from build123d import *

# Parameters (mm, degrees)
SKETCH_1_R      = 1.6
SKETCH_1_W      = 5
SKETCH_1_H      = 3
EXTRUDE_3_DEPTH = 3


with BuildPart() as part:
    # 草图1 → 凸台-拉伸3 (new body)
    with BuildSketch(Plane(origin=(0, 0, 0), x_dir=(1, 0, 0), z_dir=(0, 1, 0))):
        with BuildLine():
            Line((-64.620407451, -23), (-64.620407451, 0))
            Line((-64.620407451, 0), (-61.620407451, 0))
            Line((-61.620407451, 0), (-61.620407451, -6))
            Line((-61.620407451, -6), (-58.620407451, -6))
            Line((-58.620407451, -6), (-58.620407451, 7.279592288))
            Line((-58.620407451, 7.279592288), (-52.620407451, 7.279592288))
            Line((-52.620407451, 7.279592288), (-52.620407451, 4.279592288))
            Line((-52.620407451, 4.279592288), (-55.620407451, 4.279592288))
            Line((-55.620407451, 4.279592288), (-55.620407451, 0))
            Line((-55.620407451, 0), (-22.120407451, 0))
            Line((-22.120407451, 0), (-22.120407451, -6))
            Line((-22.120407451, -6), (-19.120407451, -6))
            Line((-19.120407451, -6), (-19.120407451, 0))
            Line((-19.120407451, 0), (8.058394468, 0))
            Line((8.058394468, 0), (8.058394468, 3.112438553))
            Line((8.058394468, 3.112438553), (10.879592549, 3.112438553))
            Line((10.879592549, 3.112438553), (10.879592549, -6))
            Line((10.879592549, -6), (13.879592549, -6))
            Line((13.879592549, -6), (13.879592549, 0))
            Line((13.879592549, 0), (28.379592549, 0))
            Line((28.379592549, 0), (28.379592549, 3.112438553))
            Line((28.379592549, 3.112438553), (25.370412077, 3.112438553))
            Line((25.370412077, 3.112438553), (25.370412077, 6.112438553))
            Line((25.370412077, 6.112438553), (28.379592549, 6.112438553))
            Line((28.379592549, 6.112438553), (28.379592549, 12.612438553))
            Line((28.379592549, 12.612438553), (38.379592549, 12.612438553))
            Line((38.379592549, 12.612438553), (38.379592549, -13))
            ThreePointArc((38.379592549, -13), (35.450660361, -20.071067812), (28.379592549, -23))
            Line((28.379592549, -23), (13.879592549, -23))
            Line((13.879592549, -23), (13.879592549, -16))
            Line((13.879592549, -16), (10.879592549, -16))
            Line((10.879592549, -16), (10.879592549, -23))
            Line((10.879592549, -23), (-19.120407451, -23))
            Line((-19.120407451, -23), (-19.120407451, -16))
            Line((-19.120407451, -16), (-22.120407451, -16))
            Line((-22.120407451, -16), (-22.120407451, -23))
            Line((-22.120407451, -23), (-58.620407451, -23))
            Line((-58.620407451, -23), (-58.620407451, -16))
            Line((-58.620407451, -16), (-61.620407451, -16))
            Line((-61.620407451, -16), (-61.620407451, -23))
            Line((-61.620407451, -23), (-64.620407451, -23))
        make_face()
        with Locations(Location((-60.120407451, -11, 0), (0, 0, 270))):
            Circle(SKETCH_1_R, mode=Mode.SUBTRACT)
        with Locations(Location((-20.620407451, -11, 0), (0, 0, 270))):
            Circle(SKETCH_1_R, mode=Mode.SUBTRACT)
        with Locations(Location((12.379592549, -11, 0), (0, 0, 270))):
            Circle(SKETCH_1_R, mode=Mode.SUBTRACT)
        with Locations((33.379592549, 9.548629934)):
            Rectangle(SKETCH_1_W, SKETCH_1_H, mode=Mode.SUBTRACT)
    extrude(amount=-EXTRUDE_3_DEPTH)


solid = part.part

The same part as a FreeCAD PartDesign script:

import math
import FreeCAD as App
import Part
import Sketcher
Q = App.Units.Quantity


def add_polygon(sketch, points):
    """Adds a closed chain of lines whose ends are joined by coincident constraints."""
    first, n = sketch.GeometryCount, len(points)
    for a, b in zip(points, points[1:] + points[:1]):
        sketch.addGeometry(Part.LineSegment(App.Vector(*a, 0), App.Vector(*b, 0)), False)
    for i in range(n):
        sketch.addConstraint(Sketcher.Constraint("Coincident", first + i, 2, first + (i + 1) % n, 1))

doc = App.newDocument("Part")
body = doc.addObject("PartDesign::Body", "Body")

# Sketch on XZ plane
sketch1 = doc.addObject("Sketcher::SketchObject", "Sketch")
body.addObject(sketch1)
sketch1.AttachmentSupport = (doc.XZ_Plane, [""])
sketch1.MapMode = "FlatFace"
sketch1.addGeometry(Part.LineSegment(App.Vector(-64.6, 0, 0), App.Vector(-64.6, 23, 0)), False)  # 0
sketch1.addGeometry(Part.LineSegment(App.Vector(-64.6, 23, 0), App.Vector(-61.6, 23, 0)), False)  # 1
sketch1.addGeometry(Part.LineSegment(App.Vector(-61.6, 23, 0), App.Vector(-61.6, 16, 0)), False)  # 2
sketch1.addGeometry(Part.LineSegment(App.Vector(-61.6, 16, 0), App.Vector(-58.6, 16, 0)), False)  # 3
sketch1.addGeometry(Part.LineSegment(App.Vector(-58.6, 16, 0), App.Vector(-58.6, 23, 0)), False)  # 4
sketch1.addGeometry(Part.LineSegment(App.Vector(-58.6, 23, 0), App.Vector(-22.1, 23, 0)), False)  # 5
sketch1.addGeometry(Part.LineSegment(App.Vector(-22.1, 23, 0), App.Vector(-22.1, 16, 0)), False)  # 6
sketch1.addGeometry(Part.LineSegment(App.Vector(-22.1, 16, 0), App.Vector(-19.1, 16, 0)), False)  # 7
sketch1.addGeometry(Part.LineSegment(App.Vector(-19.1, 16, 0), App.Vector(-19.1, 23, 0)), False)  # 8
sketch1.addGeometry(Part.LineSegment(App.Vector(-19.1, 23, 0), App.Vector(10.9, 23, 0)), False)  # 9
sketch1.addGeometry(Part.LineSegment(App.Vector(10.9, 23, 0), App.Vector(10.9, 16, 0)), False)  # 10
sketch1.addGeometry(Part.LineSegment(App.Vector(10.9, 16, 0), App.Vector(13.9, 16, 0)), False)  # 11
sketch1.addGeometry(Part.LineSegment(App.Vector(13.9, 16, 0), App.Vector(13.9, 23, 0)), False)  # 12
sketch1.addGeometry(Part.LineSegment(App.Vector(13.9, 23, 0), App.Vector(28.4, 23, 0)), False)  # 13
sketch1.addGeometry(Part.ArcOfCircle(Part.Circle(App.Vector(28.4, 13, 0), App.Vector(0, 0, 1), 10), math.radians(0), math.radians(90)), False)  # 14
sketch1.addGeometry(Part.LineSegment(App.Vector(38.4, 13, 0), App.Vector(38.4, -12.6, 0)), False)  # 15
sketch1.addGeometry(Part.LineSegment(App.Vector(38.4, -12.6, 0), App.Vector(28.4, -12.6, 0)), False)  # 16
sketch1.addGeometry(Part.LineSegment(App.Vector(28.4, -12.6, 0), App.Vector(28.4, -6.1, 0)), False)  # 17
sketch1.addGeometry(Part.LineSegment(App.Vector(28.4, -6.1, 0), App.Vector(25.4, -6.1, 0)), False)  # 18
sketch1.addGeometry(Part.LineSegment(App.Vector(25.4, -6.1, 0), App.Vector(25.4, -3.1, 0)), False)  # 19
sketch1.addGeometry(Part.LineSegment(App.Vector(25.4, -3.1, 0), App.Vector(28.4, -3.1, 0)), False)  # 20
sketch1.addGeometry(Part.LineSegment(App.Vector(28.4, -3.1, 0), App.Vector(28.4, 0, 0)), False)  # 21
sketch1.addGeometry(Part.LineSegment(App.Vector(28.4, 0, 0), App.Vector(13.9, 0, 0)), False)  # 22
sketch1.addGeometry(Part.LineSegment(App.Vector(13.9, 0, 0), App.Vector(13.9, 6, 0)), False)  # 23
sketch1.addGeometry(Part.LineSegment(App.Vector(13.9, 6, 0), App.Vector(10.9, 6, 0)), False)  # 24
sketch1.addGeometry(Part.LineSegment(App.Vector(10.9, 6, 0), App.Vector(10.9, -3.1, 0)), False)  # 25
sketch1.addGeometry(Part.LineSegment(App.Vector(10.9, -3.1, 0), App.Vector(8.1, -3.1, 0)), False)  # 26
sketch1.addGeometry(Part.LineSegment(App.Vector(8.1, -3.1, 0), App.Vector(8.1, 0, 0)), False)  # 27
sketch1.addGeometry(Part.LineSegment(App.Vector(8.1, 0, 0), App.Vector(-19.1, 0, 0)), False)  # 28
sketch1.addGeometry(Part.LineSegment(App.Vector(-19.1, 0, 0), App.Vector(-19.1, 6, 0)), False)  # 29
sketch1.addGeometry(Part.LineSegment(App.Vector(-19.1, 6, 0), App.Vector(-22.1, 6, 0)), False)  # 30
sketch1.addGeometry(Part.LineSegment(App.Vector(-22.1, 6, 0), App.Vector(-22.1, 0, 0)), False)  # 31
sketch1.addGeometry(Part.LineSegment(App.Vector(-22.1, 0, 0), App.Vector(-55.6, 0, 0)), False)  # 32
sketch1.addGeometry(Part.LineSegment(App.Vector(-55.6, 0, 0), App.Vector(-55.6, -4.3, 0)), False)  # 33
sketch1.addGeometry(Part.LineSegment(App.Vector(-55.6, -4.3, 0), App.Vector(-52.6, -4.3, 0)), False)  # 34
sketch1.addGeometry(Part.LineSegment(App.Vector(-52.6, -4.3, 0), App.Vector(-52.6, -7.3, 0)), False)  # 35
sketch1.addGeometry(Part.LineSegment(App.Vector(-52.6, -7.3, 0), App.Vector(-58.6, -7.3, 0)), False)  # 36
sketch1.addGeometry(Part.LineSegment(App.Vector(-58.6, -7.3, 0), App.Vector(-58.6, 6, 0)), False)  # 37
sketch1.addGeometry(Part.LineSegment(App.Vector(-58.6, 6, 0), App.Vector(-61.6, 6, 0)), False)  # 38
sketch1.addGeometry(Part.LineSegment(App.Vector(-61.6, 6, 0), App.Vector(-61.6, 0, 0)), False)  # 39
sketch1.addGeometry(Part.LineSegment(App.Vector(-61.6, 0, 0), App.Vector(-64.6, 0, 0)), False)  # 40
sketch1.addGeometry(Part.Circle(App.Vector(12.4, 11, 0), App.Vector(0, 0, 1), 1.6), False)  # 41
sketch1.addGeometry(Part.Circle(App.Vector(-20.6, 11, 0), App.Vector(0, 0, 1), 1.6), False)  # 42
sketch1.addGeometry(Part.Circle(App.Vector(-60.1, 11, 0), App.Vector(0, 0, 1), 1.6), False)  # 43
add_polygon(sketch1, [(30.9, -8), (30.9, -11), (35.9, -11), (35.9, -8)])  # lines 44-47
sketch1.addConstraint(Sketcher.Constraint("Coincident", 0, 2, 1, 1))
sketch1.addConstraint(Sketcher.Constraint("Coincident", 1, 2, 2, 1))
sketch1.addConstraint(Sketcher.Constraint("Coincident", 2, 2, 3, 1))
sketch1.addConstraint(Sketcher.Constraint("Coincident", 3, 2, 4, 1))
sketch1.addConstraint(Sketcher.Constraint("Coincident", 4, 2, 5, 1))
sketch1.addConstraint(Sketcher.Constraint("Coincident", 5, 2, 6, 1))
sketch1.addConstraint(Sketcher.Constraint("Coincident", 6, 2, 7, 1))
sketch1.addConstraint(Sketcher.Constraint("Coincident", 7, 2, 8, 1))
sketch1.addConstraint(Sketcher.Constraint("Coincident", 8, 2, 9, 1))
sketch1.addConstraint(Sketcher.Constraint("Coincident", 9, 2, 10, 1))
sketch1.addConstraint(Sketcher.Constraint("Coincident", 10, 2, 11, 1))
sketch1.addConstraint(Sketcher.Constraint("Coincident", 11, 2, 12, 1))
sketch1.addConstraint(Sketcher.Constraint("Coincident", 12, 2, 13, 1))
sketch1.addConstraint(Sketcher.Constraint("Tangent", 13, 2, 14, 2))
sketch1.addConstraint(Sketcher.Constraint("Tangent", 14, 1, 15, 1))
sketch1.addConstraint(Sketcher.Constraint("Coincident", 15, 2, 16, 1))
sketch1.addConstraint(Sketcher.Constraint("Coincident", 16, 2, 17, 1))
sketch1.addConstraint(Sketcher.Constraint("Coincident", 17, 2, 18, 1))
sketch1.addConstraint(Sketcher.Constraint("Coincident", 18, 2, 19, 1))
sketch1.addConstraint(Sketcher.Constraint("Coincident", 19, 2, 20, 1))
sketch1.addConstraint(Sketcher.Constraint("Coincident", 20, 2, 21, 1))
sketch1.addConstraint(Sketcher.Constraint("Coincident", 21, 2, 22, 1))
sketch1.addConstraint(Sketcher.Constraint("Coincident", 22, 2, 23, 1))
sketch1.addConstraint(Sketcher.Constraint("Coincident", 23, 2, 24, 1))
sketch1.addConstraint(Sketcher.Constraint("Coincident", 24, 2, 25, 1))
sketch1.addConstraint(Sketcher.Constraint("Coincident", 25, 2, 26, 1))
sketch1.addConstraint(Sketcher.Constraint("Coincident", 26, 2, 27, 1))
sketch1.addConstraint(Sketcher.Constraint("Coincident", 27, 2, 28, 1))
sketch1.addConstraint(Sketcher.Constraint("Coincident", 28, 2, 29, 1))
sketch1.addConstraint(Sketcher.Constraint("Coincident", 29, 2, 30, 1))
sketch1.addConstraint(Sketcher.Constraint("Coincident", 30, 2, 31, 1))
sketch1.addConstraint(Sketcher.Constraint("Coincident", 31, 2, 32, 1))
sketch1.addConstraint(Sketcher.Constraint("Coincident", 32, 2, 33, 1))
sketch1.addConstraint(Sketcher.Constraint("Coincident", 33, 2, 34, 1))
sketch1.addConstraint(Sketcher.Constraint("Coincident", 34, 2, 35, 1))
sketch1.addConstraint(Sketcher.Constraint("Coincident", 35, 2, 36, 1))
sketch1.addConstraint(Sketcher.Constraint("Coincident", 36, 2, 37, 1))
sketch1.addConstraint(Sketcher.Constraint("Coincident", 37, 2, 38, 1))
sketch1.addConstraint(Sketcher.Constraint("Coincident", 38, 2, 39, 1))
sketch1.addConstraint(Sketcher.Constraint("Coincident", 39, 2, 40, 1))
sketch1.addConstraint(Sketcher.Constraint("Coincident", 40, 2, 0, 1))
sketch1.addConstraint(Sketcher.Constraint("Vertical", 0))
sketch1.addConstraint(Sketcher.Constraint("Horizontal", 1))
sketch1.addConstraint(Sketcher.Constraint("Vertical", 2))
sketch1.addConstraint(Sketcher.Constraint("Horizontal", 3))
sketch1.addConstraint(Sketcher.Constraint("Vertical", 4))
sketch1.addConstraint(Sketcher.Constraint("Horizontal", 5))
sketch1.addConstraint(Sketcher.Constraint("Vertical", 6))
sketch1.addConstraint(Sketcher.Constraint("Horizontal", 7))
sketch1.addConstraint(Sketcher.Constraint("Vertical", 8))
sketch1.addConstraint(Sketcher.Constraint("Horizontal", 9))
sketch1.addConstraint(Sketcher.Constraint("Vertical", 10))
sketch1.addConstraint(Sketcher.Constraint("Horizontal", 11))
sketch1.addConstraint(Sketcher.Constraint("Vertical", 12))
sketch1.addConstraint(Sketcher.Constraint("Horizontal", 13))
sketch1.addConstraint(Sketcher.Constraint("Vertical", 15))
sketch1.addConstraint(Sketcher.Constraint("Horizontal", 16))
sketch1.addConstraint(Sketcher.Constraint("Vertical", 17))
sketch1.addConstraint(Sketcher.Constraint("Horizontal", 18))
sketch1.addConstraint(Sketcher.Constraint("Vertical", 19))
sketch1.addConstraint(Sketcher.Constraint("Horizontal", 20))
sketch1.addConstraint(Sketcher.Constraint("Vertical", 21))
sketch1.addConstraint(Sketcher.Constraint("Horizontal", 22))
sketch1.addConstraint(Sketcher.Constraint("Vertical", 23))
sketch1.addConstraint(Sketcher.Constraint("Horizontal", 24))
sketch1.addConstraint(Sketcher.Constraint("Vertical", 25))
sketch1.addConstraint(Sketcher.Constraint("Horizontal", 26))
sketch1.addConstraint(Sketcher.Constraint("Vertical", 27))
sketch1.addConstraint(Sketcher.Constraint("Horizontal", 28))
sketch1.addConstraint(Sketcher.Constraint("Vertical", 29))
sketch1.addConstraint(Sketcher.Constraint("Horizontal", 30))
sketch1.addConstraint(Sketcher.Constraint("Vertical", 31))
sketch1.addConstraint(Sketcher.Constraint("Horizontal", 32))
sketch1.addConstraint(Sketcher.Constraint("Vertical", 33))
sketch1.addConstraint(Sketcher.Constraint("Horizontal", 34))
sketch1.addConstraint(Sketcher.Constraint("Vertical", 35))
sketch1.addConstraint(Sketcher.Constraint("Horizontal", 36))
sketch1.addConstraint(Sketcher.Constraint("Vertical", 37))
sketch1.addConstraint(Sketcher.Constraint("Horizontal", 38))
sketch1.addConstraint(Sketcher.Constraint("Vertical", 39))
sketch1.addConstraint(Sketcher.Constraint("Horizontal", 40))
sketch1.addConstraint(Sketcher.Constraint("Vertical", 44))
sketch1.addConstraint(Sketcher.Constraint("Horizontal", 45))
sketch1.addConstraint(Sketcher.Constraint("Vertical", 46))
sketch1.addConstraint(Sketcher.Constraint("Horizontal", 47))
sketch1.addConstraint(Sketcher.Constraint("Equal", 41, 42))
sketch1.addConstraint(Sketcher.Constraint("Equal", 42, 43))
sketch1.addConstraint(Sketcher.Constraint("PointOnObject", 21, 2, -1))
sketch1.addConstraint(Sketcher.Constraint("PointOnObject", 27, 2, -1))
sketch1.addConstraint(Sketcher.Constraint("PointOnObject", 31, 2, -1))
sketch1.addConstraint(Sketcher.Constraint("PointOnObject", 39, 2, -1))
sketch1.addConstraint(Sketcher.Constraint("Horizontal", 41, 3, 42, 3))
sketch1.addConstraint(Sketcher.Constraint("Horizontal", 42, 3, 43, 3))
sketch1.addConstraint(Sketcher.Constraint("Horizontal", 1, 2, 4, 2))
sketch1.addConstraint(Sketcher.Constraint("Horizontal", 3, 2, 6, 2))
sketch1.addConstraint(Sketcher.Constraint("Horizontal", 5, 2, 8, 2))
sketch1.addConstraint(Sketcher.Constraint("Horizontal", 7, 2, 10, 2))
sketch1.addConstraint(Sketcher.Constraint("Horizontal", 9, 2, 12, 2))
sketch1.addConstraint(Sketcher.Constraint("Horizontal", 20, 2, 25, 2))
sketch1.addConstraint(Sketcher.Constraint("Horizontal", 24, 2, 29, 2))
sketch1.addConstraint(Sketcher.Constraint("Horizontal", 30, 2, 37, 2))
sketch1.addConstraint(Sketcher.Constraint("Vertical", 13, 2, 16, 2))
sketch1.addConstraint(Sketcher.Constraint("Vertical", 17, 2, 20, 2))
sketch1.addConstraint(Sketcher.Constraint("Vertical", 12, 2, 22, 2))
sketch1.addConstraint(Sketcher.Constraint("Vertical", 10, 2, 24, 2))
sketch1.addConstraint(Sketcher.Constraint("Vertical", 8, 2, 28, 2))
sketch1.addConstraint(Sketcher.Constraint("Vertical", 6, 2, 30, 2))
sketch1.addConstraint(Sketcher.Constraint("Vertical", 4, 2, 36, 2))
sketch1.addConstraint(Sketcher.Constraint("Vertical", 2, 2, 38, 2))
sketch1.addConstraint(Sketcher.Constraint("Equal", 1, 3))
sketch1.addConstraint(Sketcher.Constraint("Equal", 3, 7))
sketch1.addConstraint(Sketcher.Constraint("Equal", 7, 11))
sketch1.addConstraint(Sketcher.Constraint("Equal", 30, 34))
sketch1.addConstraint(Sketcher.Constraint("Equal", 40, 19))
sketch1.addConstraint(Sketcher.Constraint("Equal", 36, 23))
sketch1.addConstraint(Sketcher.Constraint("Equal", 19, 35))
sketch1.addConstraint(Sketcher.Constraint("Equal", 35, 44))
sketch1.addConstraint(Sketcher.Constraint("Radius", 14, Q("10 mm")))
sketch1.addConstraint(Sketcher.Constraint("Diameter", 41, Q("3.2 mm")))
sketch1.addConstraint(Sketcher.Constraint("DistanceX", 1, 1, 1, 2, Q("3 mm")))
sketch1.addConstraint(Sketcher.Constraint("DistanceX", 9, 1, 9, 2, Q("30 mm")))
sketch1.addConstraint(Sketcher.Constraint("DistanceX", 36, 2, 36, 1, Q("6 mm")))
sketch1.addConstraint(Sketcher.Constraint("DistanceX", 45, 1, 45, 2, Q("5 mm")))
sketch1.addConstraint(Sketcher.Constraint("DistanceY", 0, 1, 0, 2, Q("23 mm")))
sketch1.addConstraint(Sketcher.Constraint("DistanceY", 2, 2, 2, 1, Q("7 mm")))
sketch1.addConstraint(Sketcher.Constraint("DistanceX", 5, 1, 5, 2, Q("36.5 mm")))
sketch1.addConstraint(Sketcher.Constraint("DistanceX", 13, 1, 13, 2, Q("14.5 mm")))
sketch1.addConstraint(Sketcher.Constraint("DistanceY", 17, 1, 17, 2, Q("6.5 mm")))
sketch1.addConstraint(Sketcher.Constraint("DistanceY", -1, 1, 41, 3, Q("11 mm")))
sketch1.addConstraint(Sketcher.Constraint("DistanceX", 41, 3, 14, 3, Q("16 mm")))
sketch1.addConstraint(Sketcher.Constraint("DistanceX", 42, 3, 41, 3, Q("33 mm")))
sketch1.addConstraint(Sketcher.Constraint("DistanceX", 43, 3, 42, 3, Q("39.5 mm")))
sketch1.addConstraint(Sketcher.Constraint("DistanceX", 16, 2, 44, 2, Q("2.5 mm")))
sketch1.addConstraint(Sketcher.Constraint("DistanceX", 26, 2, 26, 1, Q("2.821198 mm")))
sketch1.addConstraint(Sketcher.Constraint("DistanceX", 18, 2, 18, 1, Q("3.00918 mm")))
sketch1.addConstraint(Sketcher.Constraint("DistanceY", 15, 2, 15, 1, Q("25.612439 mm")))
sketch1.addConstraint(Sketcher.Constraint("DistanceY", 33, 2, 33, 1, Q("4.279592 mm")))
sketch1.addConstraint(Sketcher.Constraint("DistanceY", 44, 2, -1, 1, Q("11.04863 mm")))
sketch1.addConstraint(Sketcher.Constraint("DistanceX", -1, 1, 14, 3, Q("28.379593 mm")))
pad1 = doc.addObject("PartDesign::Pad", "Pad")
body.addObject(pad1)
pad1.Profile = sketch1
pad1.Length = 3

doc.recompute()
